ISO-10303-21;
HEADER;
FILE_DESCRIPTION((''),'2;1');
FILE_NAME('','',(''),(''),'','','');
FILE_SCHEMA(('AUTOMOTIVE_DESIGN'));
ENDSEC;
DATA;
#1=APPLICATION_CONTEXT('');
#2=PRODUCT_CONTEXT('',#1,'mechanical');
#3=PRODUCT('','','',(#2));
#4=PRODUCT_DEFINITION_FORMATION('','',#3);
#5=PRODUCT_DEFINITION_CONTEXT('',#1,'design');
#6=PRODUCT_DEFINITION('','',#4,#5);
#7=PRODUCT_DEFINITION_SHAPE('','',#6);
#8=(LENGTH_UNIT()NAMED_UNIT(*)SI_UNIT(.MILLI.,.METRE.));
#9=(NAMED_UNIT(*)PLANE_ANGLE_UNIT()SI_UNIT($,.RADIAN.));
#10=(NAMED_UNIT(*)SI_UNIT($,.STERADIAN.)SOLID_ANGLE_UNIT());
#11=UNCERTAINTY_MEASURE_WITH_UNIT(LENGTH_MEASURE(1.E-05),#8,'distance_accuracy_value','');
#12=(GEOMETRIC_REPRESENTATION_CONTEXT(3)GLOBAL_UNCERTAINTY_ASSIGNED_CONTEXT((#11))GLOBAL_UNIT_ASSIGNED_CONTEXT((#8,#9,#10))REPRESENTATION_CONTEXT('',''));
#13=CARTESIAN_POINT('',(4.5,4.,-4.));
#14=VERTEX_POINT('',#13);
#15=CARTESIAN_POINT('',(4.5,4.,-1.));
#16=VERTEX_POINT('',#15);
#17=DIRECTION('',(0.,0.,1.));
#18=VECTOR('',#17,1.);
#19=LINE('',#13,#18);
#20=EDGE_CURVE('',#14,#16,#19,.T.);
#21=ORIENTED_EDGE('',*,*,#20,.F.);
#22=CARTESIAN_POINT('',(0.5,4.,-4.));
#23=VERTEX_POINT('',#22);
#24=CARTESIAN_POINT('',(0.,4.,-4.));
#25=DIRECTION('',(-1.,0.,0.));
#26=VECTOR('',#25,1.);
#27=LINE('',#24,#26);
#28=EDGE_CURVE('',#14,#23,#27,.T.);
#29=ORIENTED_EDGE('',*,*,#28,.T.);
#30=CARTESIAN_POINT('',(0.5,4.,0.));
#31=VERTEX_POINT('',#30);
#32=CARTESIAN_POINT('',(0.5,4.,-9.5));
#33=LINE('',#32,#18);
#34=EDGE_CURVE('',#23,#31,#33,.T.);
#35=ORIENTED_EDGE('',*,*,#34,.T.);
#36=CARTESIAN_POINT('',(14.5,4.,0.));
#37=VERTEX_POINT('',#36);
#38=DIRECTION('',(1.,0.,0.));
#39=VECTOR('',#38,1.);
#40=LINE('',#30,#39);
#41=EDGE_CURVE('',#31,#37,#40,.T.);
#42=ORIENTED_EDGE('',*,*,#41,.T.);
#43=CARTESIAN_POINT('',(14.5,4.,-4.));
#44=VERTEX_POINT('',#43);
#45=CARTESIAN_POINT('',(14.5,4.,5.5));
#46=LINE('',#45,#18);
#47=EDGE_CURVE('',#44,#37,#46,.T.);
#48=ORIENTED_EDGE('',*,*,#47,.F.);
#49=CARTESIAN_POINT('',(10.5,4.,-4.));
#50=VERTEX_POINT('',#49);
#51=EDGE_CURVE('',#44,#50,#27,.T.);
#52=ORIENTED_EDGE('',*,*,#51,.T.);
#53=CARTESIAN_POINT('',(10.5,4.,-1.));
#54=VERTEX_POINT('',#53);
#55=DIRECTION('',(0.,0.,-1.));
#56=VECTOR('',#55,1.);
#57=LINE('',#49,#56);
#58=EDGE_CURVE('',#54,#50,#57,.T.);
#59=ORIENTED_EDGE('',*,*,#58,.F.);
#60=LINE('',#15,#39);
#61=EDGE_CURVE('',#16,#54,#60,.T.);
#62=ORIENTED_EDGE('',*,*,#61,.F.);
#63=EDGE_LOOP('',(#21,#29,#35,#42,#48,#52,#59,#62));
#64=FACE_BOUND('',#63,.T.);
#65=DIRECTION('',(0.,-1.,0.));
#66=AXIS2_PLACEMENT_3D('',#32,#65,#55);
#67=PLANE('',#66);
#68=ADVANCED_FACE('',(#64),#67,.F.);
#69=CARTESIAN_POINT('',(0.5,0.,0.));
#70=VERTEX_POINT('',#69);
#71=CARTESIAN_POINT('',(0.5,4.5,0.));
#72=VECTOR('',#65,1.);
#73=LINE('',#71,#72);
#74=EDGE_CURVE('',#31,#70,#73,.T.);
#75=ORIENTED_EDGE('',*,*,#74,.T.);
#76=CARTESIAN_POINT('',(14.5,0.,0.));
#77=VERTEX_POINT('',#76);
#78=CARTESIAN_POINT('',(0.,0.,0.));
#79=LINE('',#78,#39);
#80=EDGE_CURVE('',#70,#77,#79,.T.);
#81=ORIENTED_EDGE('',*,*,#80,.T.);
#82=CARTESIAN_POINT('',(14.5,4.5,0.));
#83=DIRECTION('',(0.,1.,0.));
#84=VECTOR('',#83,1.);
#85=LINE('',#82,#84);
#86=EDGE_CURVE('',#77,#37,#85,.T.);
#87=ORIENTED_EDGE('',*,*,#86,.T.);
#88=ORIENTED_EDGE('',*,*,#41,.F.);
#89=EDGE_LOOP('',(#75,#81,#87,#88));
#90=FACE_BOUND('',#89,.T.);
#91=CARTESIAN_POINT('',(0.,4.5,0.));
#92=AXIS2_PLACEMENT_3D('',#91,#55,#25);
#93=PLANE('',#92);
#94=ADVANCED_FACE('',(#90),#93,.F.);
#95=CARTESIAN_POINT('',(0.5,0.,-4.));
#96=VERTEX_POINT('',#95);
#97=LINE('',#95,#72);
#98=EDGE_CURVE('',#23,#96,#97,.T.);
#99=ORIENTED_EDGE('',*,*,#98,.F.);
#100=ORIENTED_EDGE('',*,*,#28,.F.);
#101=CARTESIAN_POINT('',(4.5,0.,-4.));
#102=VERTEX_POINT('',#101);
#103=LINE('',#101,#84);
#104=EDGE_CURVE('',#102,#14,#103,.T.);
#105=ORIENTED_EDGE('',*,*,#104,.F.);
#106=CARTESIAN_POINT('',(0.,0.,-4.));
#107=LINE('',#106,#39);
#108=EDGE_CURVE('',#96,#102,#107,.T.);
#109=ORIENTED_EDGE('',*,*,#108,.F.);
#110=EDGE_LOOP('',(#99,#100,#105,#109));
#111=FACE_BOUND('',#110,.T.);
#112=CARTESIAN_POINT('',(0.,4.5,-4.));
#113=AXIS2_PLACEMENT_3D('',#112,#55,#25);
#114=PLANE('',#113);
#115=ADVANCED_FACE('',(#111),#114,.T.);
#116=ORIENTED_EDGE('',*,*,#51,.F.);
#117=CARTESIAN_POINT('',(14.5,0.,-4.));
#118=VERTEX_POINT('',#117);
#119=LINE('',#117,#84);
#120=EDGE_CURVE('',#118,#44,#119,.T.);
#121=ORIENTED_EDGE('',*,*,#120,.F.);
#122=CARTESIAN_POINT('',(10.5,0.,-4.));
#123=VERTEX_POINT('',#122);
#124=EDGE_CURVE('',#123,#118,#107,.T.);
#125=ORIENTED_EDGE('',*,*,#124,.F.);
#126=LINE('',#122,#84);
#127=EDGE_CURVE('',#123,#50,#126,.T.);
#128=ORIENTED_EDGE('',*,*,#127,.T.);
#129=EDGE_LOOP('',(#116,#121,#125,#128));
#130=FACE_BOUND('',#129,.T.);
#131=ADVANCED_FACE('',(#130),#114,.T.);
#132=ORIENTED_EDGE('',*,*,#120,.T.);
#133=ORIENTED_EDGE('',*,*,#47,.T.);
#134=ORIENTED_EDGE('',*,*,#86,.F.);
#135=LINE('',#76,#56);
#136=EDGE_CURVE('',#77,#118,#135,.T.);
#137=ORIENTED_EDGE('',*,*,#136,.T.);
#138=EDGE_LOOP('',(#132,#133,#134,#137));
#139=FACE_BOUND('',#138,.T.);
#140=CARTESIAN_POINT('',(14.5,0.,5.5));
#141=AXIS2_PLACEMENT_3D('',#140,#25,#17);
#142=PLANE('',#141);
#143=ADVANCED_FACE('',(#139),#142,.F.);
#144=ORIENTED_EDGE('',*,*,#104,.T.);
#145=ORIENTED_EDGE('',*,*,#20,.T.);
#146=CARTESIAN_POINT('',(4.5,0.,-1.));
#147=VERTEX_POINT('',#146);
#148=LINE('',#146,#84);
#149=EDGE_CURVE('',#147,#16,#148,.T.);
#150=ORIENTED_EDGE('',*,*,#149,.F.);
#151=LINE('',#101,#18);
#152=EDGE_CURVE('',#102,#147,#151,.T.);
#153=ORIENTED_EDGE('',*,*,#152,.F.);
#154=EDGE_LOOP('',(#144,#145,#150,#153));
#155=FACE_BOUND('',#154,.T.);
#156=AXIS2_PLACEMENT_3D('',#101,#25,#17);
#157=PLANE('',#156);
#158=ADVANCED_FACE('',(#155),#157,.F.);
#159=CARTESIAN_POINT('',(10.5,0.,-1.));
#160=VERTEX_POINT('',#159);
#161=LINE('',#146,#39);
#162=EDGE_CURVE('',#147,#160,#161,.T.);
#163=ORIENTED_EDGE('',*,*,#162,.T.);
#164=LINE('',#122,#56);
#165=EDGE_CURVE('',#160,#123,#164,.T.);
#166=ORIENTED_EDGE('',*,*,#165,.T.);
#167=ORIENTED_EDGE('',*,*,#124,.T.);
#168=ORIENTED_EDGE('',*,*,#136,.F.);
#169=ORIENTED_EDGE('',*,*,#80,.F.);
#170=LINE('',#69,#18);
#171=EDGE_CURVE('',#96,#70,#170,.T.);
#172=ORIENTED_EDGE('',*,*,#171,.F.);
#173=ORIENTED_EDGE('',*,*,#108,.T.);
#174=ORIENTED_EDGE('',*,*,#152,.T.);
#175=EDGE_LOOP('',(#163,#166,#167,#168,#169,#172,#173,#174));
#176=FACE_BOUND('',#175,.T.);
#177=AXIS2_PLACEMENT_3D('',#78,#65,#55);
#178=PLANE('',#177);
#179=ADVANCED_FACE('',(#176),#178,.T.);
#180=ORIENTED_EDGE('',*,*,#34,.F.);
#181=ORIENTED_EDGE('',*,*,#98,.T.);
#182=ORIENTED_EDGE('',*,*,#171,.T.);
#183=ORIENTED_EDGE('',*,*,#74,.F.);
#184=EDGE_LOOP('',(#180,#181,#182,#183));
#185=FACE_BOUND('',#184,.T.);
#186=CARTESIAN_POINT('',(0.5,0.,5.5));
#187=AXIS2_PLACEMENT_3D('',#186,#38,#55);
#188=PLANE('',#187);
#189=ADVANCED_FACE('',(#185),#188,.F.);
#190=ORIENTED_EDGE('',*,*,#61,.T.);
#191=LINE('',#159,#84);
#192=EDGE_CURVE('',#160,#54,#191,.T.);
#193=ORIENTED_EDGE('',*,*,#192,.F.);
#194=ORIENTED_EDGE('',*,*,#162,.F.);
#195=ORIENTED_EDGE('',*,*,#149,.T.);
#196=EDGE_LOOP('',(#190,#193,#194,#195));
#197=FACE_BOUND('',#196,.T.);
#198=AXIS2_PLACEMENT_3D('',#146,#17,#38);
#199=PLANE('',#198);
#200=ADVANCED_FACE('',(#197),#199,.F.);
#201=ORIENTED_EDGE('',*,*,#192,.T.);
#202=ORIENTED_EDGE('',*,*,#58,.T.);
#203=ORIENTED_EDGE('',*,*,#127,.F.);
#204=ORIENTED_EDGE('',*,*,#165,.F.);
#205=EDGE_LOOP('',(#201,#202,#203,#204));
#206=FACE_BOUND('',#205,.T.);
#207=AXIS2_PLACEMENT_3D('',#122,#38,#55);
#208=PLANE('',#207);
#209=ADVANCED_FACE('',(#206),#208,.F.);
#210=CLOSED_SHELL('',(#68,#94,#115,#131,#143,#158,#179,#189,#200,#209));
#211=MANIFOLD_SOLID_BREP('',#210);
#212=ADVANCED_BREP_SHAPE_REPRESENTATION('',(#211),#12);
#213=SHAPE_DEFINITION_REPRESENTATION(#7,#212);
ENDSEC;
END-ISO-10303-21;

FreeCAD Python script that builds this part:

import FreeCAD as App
import Part
import Sketcher

V = App.Vector
Q = App.Units.Quantity

doc = App.newDocument("Part")
params = doc.addObject("Spreadsheet::Sheet", "Params")
for row, (alias, value) in enumerate([
    ("sketch1_width", "15 mm"),
    ("sketch1_height", "4 mm"),
    ("pad1_length", "4.5 mm"),
    ("sketch2_width", "6 mm"),
    ("sketch2_height", "3 mm"),
    ("pocket1_length", "4.5 mm"),
    ("sketch3_width", "0.5 mm"),
    ("sketch3_height", "4.5 mm"),
    ("pocket2_length", "9.5 mm"),
    ("sketch4_width", "0.5 mm"),
    ("sketch4_height", "4.5 mm"),
    ("pocket3_length", "9.5 mm"),
    ("sketch5_width", "14 mm"),
    ("sketch5_height", "0.5 mm"),
    ("pocket4_length", "9.5 mm"),
], start=1):
    params.set(f"A{row}", alias)
    params.set(f"B{row}", "=" + value)
    params.setAlias(f"B{row}", alias)

body = doc.addObject("PartDesign::Body", "Body")

# Sketch on XZ plane
sketch1 = doc.addObject("Sketcher::SketchObject", "Sketch")
body.addObject(sketch1)
sketch1.AttachmentSupport = (doc.XZ_Plane, [""])
sketch1.MapMode = "FlatFace"
sketch1.addGeometry(Part.LineSegment(V(0, -4, 0), V(0, 0, 0)), False)
sketch1.addGeometry(Part.LineSegment(V(0, 0, 0), V(15, 0, 0)), False)
sketch1.addGeometry(Part.LineSegment(V(15, 0, 0), V(15, -4, 0)), False)
sketch1.addGeometry(Part.LineSegment(V(15, -4, 0), V(0, -4, 0)), False)
sketch1.addConstraint(Sketcher.Constraint("Coincident", 0, 2, 1, 1))
sketch1.addConstraint(Sketcher.Constraint("Coincident", 1, 2, 2, 1))
sketch1.addConstraint(Sketcher.Constraint("Coincident", 2, 2, 3, 1))
sketch1.addConstraint(Sketcher.Constraint("Coincident", 3, 2, 0, 1))
sketch1.addConstraint(Sketcher.Constraint("Vertical", 0))
sketch1.addConstraint(Sketcher.Constraint("Horizontal", 1))
sketch1.addConstraint(Sketcher.Constraint("Vertical", 2))
sketch1.addConstraint(Sketcher.Constraint("Horizontal", 3))
sketch1.addConstraint(Sketcher.Constraint("Coincident", 0, 2, -1, 1))
sketch1.addConstraint(Sketcher.Constraint("DistanceX", 1, 1, 1, 2, Q("15 mm")))
sketch1.addConstraint(Sketcher.Constraint("DistanceY", 0, 1, 0, 2, Q("4 mm")))
sketch1.setExpression("Constraints[9]", "Params.sketch1_width")
sketch1.setExpression("Constraints[10]", "Params.sketch1_height")
pad1 = doc.addObject("PartDesign::Pad", "Pad")
body.addObject(pad1)
pad1.Profile = sketch1
pad1.setExpression("Length", "Params.pad1_length")
pad1.Reversed = True

# Sketch on XZ plane
sketch2 = doc.addObject("Sketcher::SketchObject", "Sketch001")
body.addObject(sketch2)
sketch2.AttachmentSupport = (doc.XZ_Plane, [""])
sketch2.MapMode = "FlatFace"
sketch2.AttachmentOffset = App.Placement(V(0, 0, -4.5), App.Rotation())
sketch2.addGeometry(Part.LineSegment(V(4.5, -4, 0), V(4.5, -1, 0)), False)
sketch2.addGeometry(Part.LineSegment(V(4.5, -1, 0), V(10.5, -1, 0)), False)
sketch2.addGeometry(Part.LineSegment(V(10.5, -1, 0), V(10.5, -4, 0)), False)
sketch2.addGeometry(Part.LineSegment(V(10.5, -4, 0), V(4.5, -4, 0)), False)
sketch2.addConstraint(Sketcher.Constraint("Coincident", 0, 2, 1, 1))
sketch2.addConstraint(Sketcher.Constraint("Coincident", 1, 2, 2, 1))
sketch2.addConstraint(Sketcher.Constraint("Coincident", 2, 2, 3, 1))
sketch2.addConstraint(Sketcher.Constraint("Coincident", 3, 2, 0, 1))
sketch2.addConstraint(Sketcher.Constraint("Vertical", 0))
sketch2.addConstraint(Sketcher.Constraint("Horizontal", 1))
sketch2.addConstraint(Sketcher.Constraint("Vertical", 2))
sketch2.addConstraint(Sketcher.Constraint("Horizontal", 3))
sketch2.addConstraint(Sketcher.Constraint("DistanceX", 1, 1, 1, 2, Q("6 mm")))
sketch2.addConstraint(Sketcher.Constraint("DistanceY", 0, 1, 0, 2, Q("3 mm")))
sketch2.addConstraint(Sketcher.Constraint("DistanceY", 0, 2, -1, 1, Q("1 mm")))
sketch2.addConstraint(Sketcher.Constraint("DistanceX", -1, 1, 0, 2, Q("4.5 mm")))
sketch2.setExpression("Constraints[8]", "Params.sketch2_width")
sketch2.setExpression("Constraints[9]", "Params.sketch2_height")
pocket1 = doc.addObject("PartDesign::Pocket", "Pocket")
body.addObject(pocket1)
pocket1.Profile = sketch2
pocket1.setExpression("Length", "Params.pocket1_length")
pocket1.Reversed = True

# Sketch on XY plane
sketch3 = doc.addObject("Sketcher::SketchObject", "Sketch002")
body.addObject(sketch3)
sketch3.AttachmentSupport = (doc.XY_Plane, [""])
sketch3.MapMode = "FlatFace"
sketch3.AttachmentOffset = App.Placement(V(0, 0, -4), App.Rotation())
sketch3.addGeometry(Part.LineSegment(V(0.5, 4.5, 0), V(0.5, 0, 0)), False)
sketch3.addGeometry(Part.LineSegment(V(0.5, 0, 0), V(0, 0, 0)), False)
sketch3.addGeometry(Part.LineSegment(V(0, 0, 0), V(0, 4.5, 0)), False)
sketch3.addGeometry(Part.LineSegment(V(0, 4.5, 0), V(0.5, 4.5, 0)), False)
sketch3.addConstraint(Sketcher.Constraint("Coincident", 0, 2, 1, 1))
sketch3.addConstraint(Sketcher.Constraint("Coincident", 1, 2, 2, 1))
sketch3.addConstraint(Sketcher.Constraint("Coincident", 2, 2, 3, 1))
sketch3.addConstraint(Sketcher.Constraint("Coincident", 3, 2, 0, 1))
sketch3.addConstraint(Sketcher.Constraint("Vertical", 0))
sketch3.addConstraint(Sketcher.Constraint("Horizontal", 1))
sketch3.addConstraint(Sketcher.Constraint("Vertical", 2))
sketch3.addConstraint(Sketcher.Constraint("Horizontal", 3))
sketch3.addConstraint(Sketcher.Constraint("Coincident", 1, 2, -1, 1))
sketch3.addConstraint(Sketcher.Constraint("DistanceX", 1, 2, 1, 1, Q("0.5 mm")))
sketch3.addConstraint(Sketcher.Constraint("DistanceY", 0, 2, 0, 1, Q("4.5 mm")))
sketch3.setExpression("Constraints[9]", "Params.sketch3_width")
sketch3.setExpression("Constraints[10]", "Params.sketch3_height")
pocket2 = doc.addObject("PartDesign::Pocket", "Pocket001")
body.addObject(pocket2)
pocket2.Profile = sketch3
pocket2.setExpression("Length", "Params.pocket2_length")
pocket2.Reversed = True

# Sketch on XY plane
sketch4 = doc.addObject("Sketcher::SketchObject", "Sketch003")
body.addObject(sketch4)
sketch4.AttachmentSupport = (doc.XY_Plane, [""])
sketch4.MapMode = "FlatFace"
sketch4.AttachmentOffset = App.Placement(V(0, 0, -4), App.Rotation())
sketch4.addGeometry(Part.LineSegment(V(15, 4.5, 0), V(15, 0, 0)), False)
sketch4.addGeometry(Part.LineSegment(V(15, 0, 0), V(14.5, 0, 0)), False)
sketch4.addGeometry(Part.LineSegment(V(14.5, 0, 0), V(14.5, 4.5, 0)), False)
sketch4.addGeometry(Part.LineSegment(V(14.5, 4.5, 0), V(15, 4.5, 0)), False)
sketch4.addConstraint(Sketcher.Constraint("Coincident", 0, 2, 1, 1))
sketch4.addConstraint(Sketcher.Constraint("Coincident", 1, 2, 2, 1))
sketch4.addConstraint(Sketcher.Constraint("Coincident", 2, 2, 3, 1))
sketch4.addConstraint(Sketcher.Constraint("Coincident", 3, 2, 0, 1))
sketch4.addConstraint(Sketcher.Constraint("Vertical", 0))
sketch4.addConstraint(Sketcher.Constraint("Horizontal", 1))
sketch4.addConstraint(Sketcher.Constraint("Vertical", 2))
sketch4.addConstraint(Sketcher.Constraint("Horizontal", 3))
sketch4.addConstraint(Sketcher.Constraint("PointOnObject", 0, 2, -1))
sketch4.addConstraint(Sketcher.Constraint("DistanceX", 1, 2, 1, 1, Q("0.5 mm")))
sketch4.addConstraint(Sketcher.Constraint("DistanceY", 0, 2, 0, 1, Q("4.5 mm")))
sketch4.addConstraint(Sketcher.Constraint("DistanceX", -1, 1, 0, 2, Q("15 mm")))
sketch4.setExpression("Constraints[9]", "Params.sketch4_width")
sketch4.setExpression("Constraints[10]", "Params.sketch4_height")
pocket3 = doc.addObject("PartDesign::Pocket", "Pocket002")
body.addObject(pocket3)
pocket3.Profile = sketch4
pocket3.setExpression("Length", "Params.pocket3_length")
pocket3.Reversed = True

# Sketch on XY plane
sketch5 = doc.addObject("Sketcher::SketchObject", "Sketch004")
body.addObject(sketch5)
sketch5.AttachmentSupport = (doc.XY_Plane, [""])
sketch5.MapMode = "FlatFace"
sketch5.addGeometry(Part.LineSegment(V(0.5, 4.5, 0), V(0.5, 4, 0)), False)
sketch5.addGeometry(Part.LineSegment(V(0.5, 4, 0), V(14.5, 4, 0)), False)
sketch5.addGeometry(Part.LineSegment(V(14.5, 4, 0), V(14.5, 4.5, 0)), False)
sketch5.addGeometry(Part.LineSegment(V(14.5, 4.5, 0), V(0.5, 4.5, 0)), False)
sketch5.addConstraint(Sketcher.Constraint("Coincident", 0, 2, 1, 1))
sketch5.addConstraint(Sketcher.Constraint("Coincident", 1, 2, 2, 1))
sketch5.addConstraint(Sketcher.Constraint("Coincident", 2, 2, 3, 1))
sketch5.addConstraint(Sketcher.Constraint("Coincident", 3, 2, 0, 1))
sketch5.addConstraint(Sketcher.Constraint("Vertical", 0))
sketch5.addConstraint(Sketcher.Constraint("Horizontal", 1))
sketch5.addConstraint(Sketcher.Constraint("Vertical", 2))
sketch5.addConstraint(Sketcher.Constraint("Horizontal", 3))
sketch5.addConstraint(Sketcher.Constraint("DistanceX", 1, 1, 1, 2, Q("14 mm")))
sketch5.addConstraint(Sketcher.Constraint("DistanceY", 0, 2, 0, 1, Q("0.5 mm")))
sketch5.addConstraint(Sketcher.Constraint("DistanceY", -1, 1, 0, 2, Q("4 mm")))
sketch5.addConstraint(Sketcher.Constraint("DistanceX", -1, 1, 0, 2, Q("0.5 mm")))
sketch5.setExpression("Constraints[8]", "Params.sketch5_width")
sketch5.setExpression("Constraints[9]", "Params.sketch5_height")
pocket4 = doc.addObject("PartDesign::Pocket", "Pocket003")
body.addObject(pocket4)
pocket4.Profile = sketch5
pocket4.setExpression("Length", "Params.pocket4_length")

doc.recompute()
